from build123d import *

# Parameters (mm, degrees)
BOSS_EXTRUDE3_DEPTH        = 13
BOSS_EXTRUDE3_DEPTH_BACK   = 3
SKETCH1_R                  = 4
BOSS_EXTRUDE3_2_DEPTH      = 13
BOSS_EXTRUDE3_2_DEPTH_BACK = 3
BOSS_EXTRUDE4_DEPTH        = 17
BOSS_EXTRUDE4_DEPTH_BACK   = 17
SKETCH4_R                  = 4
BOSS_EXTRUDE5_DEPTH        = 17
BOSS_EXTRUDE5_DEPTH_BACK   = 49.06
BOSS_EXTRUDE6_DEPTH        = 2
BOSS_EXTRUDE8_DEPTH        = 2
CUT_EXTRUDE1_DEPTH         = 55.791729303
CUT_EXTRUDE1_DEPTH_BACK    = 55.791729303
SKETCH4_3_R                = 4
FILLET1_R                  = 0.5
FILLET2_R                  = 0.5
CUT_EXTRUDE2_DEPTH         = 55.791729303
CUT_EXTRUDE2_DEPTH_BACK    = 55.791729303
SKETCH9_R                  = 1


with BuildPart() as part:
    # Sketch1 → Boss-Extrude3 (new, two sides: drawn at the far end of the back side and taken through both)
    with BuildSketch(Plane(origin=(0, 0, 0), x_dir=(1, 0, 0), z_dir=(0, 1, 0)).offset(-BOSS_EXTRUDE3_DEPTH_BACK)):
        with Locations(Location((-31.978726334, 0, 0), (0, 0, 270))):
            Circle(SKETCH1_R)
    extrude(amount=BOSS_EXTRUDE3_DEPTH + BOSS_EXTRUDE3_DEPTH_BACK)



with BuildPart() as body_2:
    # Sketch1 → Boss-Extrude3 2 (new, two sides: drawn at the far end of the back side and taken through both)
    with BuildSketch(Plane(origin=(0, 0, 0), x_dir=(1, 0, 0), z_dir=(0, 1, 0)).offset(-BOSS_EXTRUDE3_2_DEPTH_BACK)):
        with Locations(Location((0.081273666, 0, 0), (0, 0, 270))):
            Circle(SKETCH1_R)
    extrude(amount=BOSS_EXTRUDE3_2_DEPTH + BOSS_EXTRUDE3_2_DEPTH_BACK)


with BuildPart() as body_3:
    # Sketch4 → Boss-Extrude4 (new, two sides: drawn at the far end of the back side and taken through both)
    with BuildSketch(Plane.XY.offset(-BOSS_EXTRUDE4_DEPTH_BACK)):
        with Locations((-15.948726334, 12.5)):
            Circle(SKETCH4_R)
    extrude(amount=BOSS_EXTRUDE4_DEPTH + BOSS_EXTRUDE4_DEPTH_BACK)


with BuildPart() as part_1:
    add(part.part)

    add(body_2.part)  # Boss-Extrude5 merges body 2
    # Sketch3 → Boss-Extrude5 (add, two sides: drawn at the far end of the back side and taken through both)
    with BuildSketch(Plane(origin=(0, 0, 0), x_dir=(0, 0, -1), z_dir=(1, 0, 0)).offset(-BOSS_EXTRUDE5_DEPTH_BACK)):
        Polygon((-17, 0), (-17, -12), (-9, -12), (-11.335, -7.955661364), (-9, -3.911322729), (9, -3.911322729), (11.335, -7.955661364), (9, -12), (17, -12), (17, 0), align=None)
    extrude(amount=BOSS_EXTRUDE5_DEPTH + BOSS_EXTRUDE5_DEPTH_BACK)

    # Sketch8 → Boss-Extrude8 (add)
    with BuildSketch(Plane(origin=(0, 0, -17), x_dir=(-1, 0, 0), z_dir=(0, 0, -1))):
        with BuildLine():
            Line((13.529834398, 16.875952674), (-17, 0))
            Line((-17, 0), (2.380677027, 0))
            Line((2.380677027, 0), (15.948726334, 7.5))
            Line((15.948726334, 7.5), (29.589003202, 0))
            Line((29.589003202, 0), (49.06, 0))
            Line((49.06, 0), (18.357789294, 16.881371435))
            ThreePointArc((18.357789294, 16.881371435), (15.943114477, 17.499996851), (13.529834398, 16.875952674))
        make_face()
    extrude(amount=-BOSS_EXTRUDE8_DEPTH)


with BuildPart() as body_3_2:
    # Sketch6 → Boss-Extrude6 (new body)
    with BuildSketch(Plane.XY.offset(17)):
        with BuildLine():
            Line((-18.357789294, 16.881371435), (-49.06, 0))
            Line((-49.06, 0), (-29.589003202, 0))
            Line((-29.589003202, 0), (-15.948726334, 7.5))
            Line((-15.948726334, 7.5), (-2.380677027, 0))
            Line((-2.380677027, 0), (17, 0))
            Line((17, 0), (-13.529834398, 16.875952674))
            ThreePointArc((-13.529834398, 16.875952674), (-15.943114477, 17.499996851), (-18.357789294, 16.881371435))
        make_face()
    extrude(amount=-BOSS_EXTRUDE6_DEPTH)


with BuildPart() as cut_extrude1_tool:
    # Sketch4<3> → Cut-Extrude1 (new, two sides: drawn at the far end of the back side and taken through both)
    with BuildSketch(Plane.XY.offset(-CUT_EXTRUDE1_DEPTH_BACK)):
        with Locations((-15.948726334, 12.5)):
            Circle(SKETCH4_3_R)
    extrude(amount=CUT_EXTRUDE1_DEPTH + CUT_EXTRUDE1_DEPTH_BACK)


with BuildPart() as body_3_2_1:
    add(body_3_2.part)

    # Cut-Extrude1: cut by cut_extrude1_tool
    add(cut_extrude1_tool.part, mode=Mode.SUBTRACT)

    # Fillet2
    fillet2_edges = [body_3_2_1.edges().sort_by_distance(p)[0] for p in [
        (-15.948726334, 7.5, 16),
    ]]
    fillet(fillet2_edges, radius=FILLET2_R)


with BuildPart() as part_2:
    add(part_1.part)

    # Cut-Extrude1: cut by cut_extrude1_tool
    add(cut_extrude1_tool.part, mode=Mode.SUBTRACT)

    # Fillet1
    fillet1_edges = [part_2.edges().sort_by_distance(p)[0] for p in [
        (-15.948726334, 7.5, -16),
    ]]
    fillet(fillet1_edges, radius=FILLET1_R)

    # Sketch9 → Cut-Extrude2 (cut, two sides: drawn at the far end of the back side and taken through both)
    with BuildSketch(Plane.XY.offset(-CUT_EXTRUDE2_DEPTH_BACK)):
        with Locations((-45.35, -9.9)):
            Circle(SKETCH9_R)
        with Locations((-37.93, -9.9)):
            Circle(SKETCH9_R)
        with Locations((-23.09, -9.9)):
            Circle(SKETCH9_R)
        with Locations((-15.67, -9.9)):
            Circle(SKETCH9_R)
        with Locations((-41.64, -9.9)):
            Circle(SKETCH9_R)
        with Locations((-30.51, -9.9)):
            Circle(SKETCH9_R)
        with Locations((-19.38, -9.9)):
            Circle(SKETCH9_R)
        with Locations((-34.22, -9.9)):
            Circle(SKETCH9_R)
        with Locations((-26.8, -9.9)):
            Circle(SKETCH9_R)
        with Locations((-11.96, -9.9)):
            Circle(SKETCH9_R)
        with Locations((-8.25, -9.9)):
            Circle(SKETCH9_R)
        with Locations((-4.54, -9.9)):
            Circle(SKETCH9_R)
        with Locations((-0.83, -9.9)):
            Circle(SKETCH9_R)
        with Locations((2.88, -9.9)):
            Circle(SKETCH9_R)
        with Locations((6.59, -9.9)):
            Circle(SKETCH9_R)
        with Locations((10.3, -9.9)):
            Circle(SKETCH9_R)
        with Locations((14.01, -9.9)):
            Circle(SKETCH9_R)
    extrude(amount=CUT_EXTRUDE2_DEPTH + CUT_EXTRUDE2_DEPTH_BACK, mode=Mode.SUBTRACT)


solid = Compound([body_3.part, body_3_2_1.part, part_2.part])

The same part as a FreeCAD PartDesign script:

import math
import FreeCAD as App
import Part
import Sketcher
Q = App.Units.Quantity


def edges_at(feature, points):
    """Names of the edges that pass closest to the given points."""
    edges = feature.Shape.Edges
    near = lambda p: min(range(len(edges)), key=lambda i: edges[i].distToShape(Part.Vertex(*p))[0])
    return sorted({f"Edge{near(p) + 1}" for p in points})


def add_polygon(sketch, points):
    """Adds a closed chain of lines whose ends are joined by coincident constraints."""
    first, n = sketch.GeometryCount, len(points)
    for a, b in zip(points, points[1:] + points[:1]):
        sketch.addGeometry(Part.LineSegment(App.Vector(*a, 0), App.Vector(*b, 0)), False)
    for i in range(n):
        sketch.addConstraint(Sketcher.Constraint("Coincident", first + i, 2, first + (i + 1) % n, 1))

doc = App.newDocument("Part")
params = doc.addObject("Spreadsheet::Sheet", "Params")
for row, (alias, value) in enumerate([
    ("sketch1_diameter", "8 mm"),
    ("pad1_length", "13 mm"),
    ("pad1_length2", "3 mm"),
    ("sketch2_diameter", "8 mm"),
    ("pad2_length", "13 mm"),
    ("pad2_length2", "3 mm"),
    ("sketch3_diameter", "8 mm"),
    ("pad3_length", "17 mm"),
    ("pad3_length2", "17 mm"),
    ("sketch4_width", "12 mm"),
    ("sketch4_height", "8 mm"),
    ("sketch4_height2", "18 mm"),
    ("sketch4_length", "4.67 mm"),
    ("pad4_length", "17 mm"),
    ("pad4_length2", "49.06 mm"),
    ("sketch5_radius", "5 mm"),
    ("pad5_length", "2 mm"),
    ("sketch6_radius", "5 mm"),
    ("pad6_length", "2 mm"),
    ("sketch7_diameter", "8 mm"),
    ("pad7_length", "55.791729 mm"),
    ("pad7_length2", "55.791729 mm"),
    ("fillet_radius", "0.5 mm"),
    ("fillet2_radius", "0.5 mm"),
    ("sketch8_diameter", "2 mm"),
], start=1):
    params.set(f"A{row}", alias)
    params.set(f"B{row}", "=" + value)
    params.setAlias(f"B{row}", alias)

body = doc.addObject("PartDesign::Body", "Body")

# Sketch on XZ plane
sketch1 = doc.addObject("Sketcher::SketchObject", "Sketch")
body.addObject(sketch1)
sketch1.AttachmentSupport = (doc.XZ_Plane, [""])
sketch1.MapMode = "FlatFace"
sketch1.addGeometry(Part.Circle(App.Vector(-32, 0, 0), App.Vector(0, 0, 1), 4), False)
sketch1.addConstraint([
    Sketcher.Constraint("PointOnObject", 0, 3, -1),
    Sketcher.Constraint("Diameter", 0, Q("8 mm")),
    Sketcher.Constraint("DistanceX", 0, 3, -1, 1, Q("31.978726 mm")),
])
sketch1.setExpression("Constraints[1]", "Params.sketch1_diameter")
pad1 = doc.addObject("PartDesign::Pad", "Pad")
body.addObject(pad1)
pad1.Profile = sketch1
pad1.Type = "TwoLengths"
pad1.setExpression("Length", "Params.pad1_length")
pad1.setExpression("Length2", "Params.pad1_length2")
pad1.Reversed = True
body2 = doc.addObject("PartDesign::Body", "Body001")

# Sketch on XZ plane
sketch2 = doc.addObject("Sketcher::SketchObject", "Sketch001")
body2.addObject(sketch2)
sketch2.AttachmentSupport = (doc.getObject("XZ_Plane001"), [""])
sketch2.MapMode = "FlatFace"
sketch2.addGeometry(Part.Circle(App.Vector(0.1, 0, 0), App.Vector(0, 0, 1), 4), False)
sketch2.addConstraint([
    Sketcher.Constraint("PointOnObject", 0, 3, -1),
    Sketcher.Constraint("Diameter", 0, Q("8 mm")),
    Sketcher.Constraint("DistanceX", -1, 1, 0, 3, Q("0.081274 mm")),
])
sketch2.setExpression("Constraints[1]", "Params.sketch2_diameter")
pad2 = doc.addObject("PartDesign::Pad", "Pad001")
body2.addObject(pad2)
pad2.Profile = sketch2
pad2.Type = "TwoLengths"
pad2.setExpression("Length", "Params.pad2_length")
pad2.setExpression("Length2", "Params.pad2_length2")
pad2.Reversed = True
body3 = doc.addObject("PartDesign::Body", "Body002")

# Sketch on XY plane
sketch3 = doc.addObject("Sketcher::SketchObject", "Sketch002")
body3.addObject(sketch3)
sketch3.AttachmentSupport = (doc.getObject("XY_Plane002"), [""])
sketch3.MapMode = "FlatFace"
sketch3.addGeometry(Part.Circle(App.Vector(-15.9, 12.5, 0), App.Vector(0, 0, 1), 4), False)
sketch3.addConstraint([
    Sketcher.Constraint("Diameter", 0, Q("8 mm")),
    Sketcher.Constraint("DistanceY", -1, 1, 0, 3, Q("12.5 mm")),
    Sketcher.Constraint("DistanceX", 0, 3, -1, 1, Q("15.948726 mm")),
])
sketch3.setExpression("Constraints[0]", "Params.sketch3_diameter")
pad3 = doc.addObject("PartDesign::Pad", "Pad002")
body3.addObject(pad3)
pad3.Profile = sketch3
pad3.Type = "TwoLengths"
pad3.setExpression("Length", "Params.pad3_length")
pad3.setExpression("Length2", "Params.pad3_length2")
body.AllowCompound = True
doc.recompute()

boolean = doc.addObject("PartDesign::Boolean", "Boolean")
body.addObject(boolean)
boolean.Type = "Fuse"
boolean.addObjects([body2])

# Sketch on YZ plane
sketch4 = doc.addObject("Sketcher::SketchObject", "Sketch003")
body.addObject(sketch4)
sketch4.AttachmentSupport = (doc.YZ_Plane, [""])
sketch4.MapMode = "FlatFace"
add_polygon(sketch4, [(0, 17), (-12, 17), (-12, 9), (-8, 11.3), (-3.9, 9), (-3.9, -9), (-8, -11.3), (-12, -9), (-12, -17), (0, -17)])  # lines 0-9
sketch4.addConstraint([
    Sketcher.Constraint("Horizontal", 0),
    Sketcher.Constraint("Vertical", 1),
    Sketcher.Constraint("Vertical", 4),
    Sketcher.Constraint("Vertical", 7),
    Sketcher.Constraint("Horizontal", 8),
    Sketcher.Constraint("Vertical", 9),
    Sketcher.Constraint("Symmetric", 8, 2, 9, 2, -1, 1),
    Sketcher.Constraint("Symmetric", 2, 2, 5, 2, -1),
    Sketcher.Constraint("Symmetric", 1, 2, 6, 2, -1),
    Sketcher.Constraint("Parallel", 2, 5),
    Sketcher.Constraint("Parallel", 3, 6),
    Sketcher.Constraint("Horizontal", 1, 2, 3, 2),
    Sketcher.Constraint("DistanceX", 0, 2, 0, 1, Q("12 mm")),
    Sketcher.Constraint("DistanceY", 1, 2, 1, 1, Q("8 mm")),
    Sketcher.Constraint("DistanceY", 4, 2, 4, 1, Q("18 mm")),
    Sketcher.Constraint("Angle", 2, Q("30 deg")),
    Sketcher.Constraint("Distance", 2, Q("4.67 mm")),
])
sketch4.setExpression("Constraints[22]", "Params.sketch4_width")
sketch4.setExpression("Constraints[23]", "Params.sketch4_height")
sketch4.setExpression("Constraints[24]", "Params.sketch4_height2")
sketch4.setExpression("Constraints[26]", "Params.sketch4_length")
pad4 = doc.addObject("PartDesign::Pad", "Pad003")
body.addObject(pad4)
pad4.Profile = sketch4
pad4.Type = "TwoLengths"
pad4.setExpression("Length", "Params.pad4_length")
pad4.setExpression("Length2", "Params.pad4_length2")

# Sketch on XY plane
sketch5 = doc.addObject("Sketcher::SketchObject", "Sketch004")
body.addObject(sketch5)
sketch5.AttachmentSupport = (doc.XY_Plane, [""])
sketch5.MapMode = "FlatFace"
sketch5.AttachmentOffset = App.Placement(App.Vector(0, 0, -17), App.Rotation())
sketch5.addGeometry([
    Part.LineSegment(App.Vector(-13.5, 16.9, 0), App.Vector(17, 0, 0)),  # 0
    Part.LineSegment(App.Vector(17, 0, 0), App.Vector(-2.4, 0, 0)),  # 1
    Part.LineSegment(App.Vector(-2.4, 0, 0), App.Vector(-15.9, 7.5, 0)),  # 2
    Part.LineSegment(App.Vector(-15.9, 7.5, 0), App.Vector(-29.6, 0, 0)),  # 3
    Part.LineSegment(App.Vector(-29.6, 0, 0), App.Vector(-49.1, 0, 0)),  # 4
    Part.LineSegment(App.Vector(-49.1, 0, 0), App.Vector(-18.4, 16.9, 0)),  # 5
    Part.ArcOfCircle(Part.Circle(App.Vector(-15.9, 12.5, 0), App.Vector(0, 0, 1), 5), math.radians(61), math.radians(119)),  # 6
], False)
sketch5.addConstraint([
    Sketcher.Constraint("Coincident", 0, 2, 1, 1),
    Sketcher.Constraint("Coincident", 1, 2, 2, 1),
    Sketcher.Constraint("Coincident", 2, 2, 3, 1),
    Sketcher.Constraint("Coincident", 3, 2, 4, 1),
    Sketcher.Constraint("Coincident", 4, 2, 5, 1),
    Sketcher.Constraint("Tangent", 5, 2, 6, 2),
    Sketcher.Constraint("Tangent", 6, 1, 0, 1),
    Sketcher.Constraint("Horizontal", 1),
    Sketcher.Constraint("Horizontal", 4),
    Sketcher.Constraint("PointOnObject", 0, 2, -1),
    Sketcher.Constraint("PointOnObject", 3, 2, -1),
    Sketcher.Constraint("Parallel", 0, 2),
    Sketcher.Constraint("Parallel", 3, 5),
    Sketcher.Constraint("Vertical", 6, 3, 2, 2),
    Sketcher.Constraint("Radius", 6, Q("5 mm")),
    Sketcher.Constraint("DistanceX", -1, 1, 0, 2, Q("17 mm")),
    Sketcher.Constraint("DistanceY", 2, 2, 6, 3, Q("5 mm")),
    Sketcher.Constraint("DistanceY", -1, 1, 6, 3, Q("12.5 mm")),
    Sketcher.Constraint("DistanceX", 4, 2, -1, 1, Q("49.06 mm")),
    Sketcher.Constraint("Distance", 3, Q("15.566218 mm")),
])
sketch5.setExpression("Constraints[14]", "Params.sketch5_radius")
pad5 = doc.addObject("PartDesign::Pad", "Pad004")
body.addObject(pad5)
pad5.Profile = sketch5
pad5.setExpression("Length", "Params.pad5_length")
body4 = doc.addObject("PartDesign::Body", "Body003")

# Sketch on XY plane
sketch6 = doc.addObject("Sketcher::SketchObject", "Sketch005")
body4.addObject(sketch6)
sketch6.AttachmentSupport = (doc.getObject("XY_Plane003"), [""])
sketch6.MapMode = "FlatFace"
sketch6.AttachmentOffset = App.Placement(App.Vector(0, 0, 17), App.Rotation())
sketch6.addGeometry([
    Part.LineSegment(App.Vector(-18.4, 16.9, 0), App.Vector(-49.1, 0, 0)),  # 0
    Part.LineSegment(App.Vector(-49.1, 0, 0), App.Vector(-29.6, 0, 0)),  # 1
    Part.LineSegment(App.Vector(-29.6, 0, 0), App.Vector(-15.9, 7.5, 0)),  # 2
    Part.LineSegment(App.Vector(-15.9, 7.5, 0), App.Vector(-2.4, 0, 0)),  # 3
    Part.LineSegment(App.Vector(-2.4, 0, 0), App.Vector(17, 0, 0)),  # 4
    Part.LineSegment(App.Vector(17, 0, 0), App.Vector(-13.5, 16.9, 0)),  # 5
    Part.ArcOfCircle(Part.Circle(App.Vector(-15.9, 12.5, 0), App.Vector(0, 0, 1), 5), math.radians(61), math.radians(119)),  # 6
], False)
sketch6.addConstraint([
    Sketcher.Constraint("Coincident", 0, 2, 1, 1),
    Sketcher.Constraint("Coincident", 1, 2, 2, 1),
    Sketcher.Constraint("Coincident", 2, 2, 3, 1),
    Sketcher.Constraint("Coincident", 3, 2, 4, 1),
    Sketcher.Constraint("Coincident", 4, 2, 5, 1),
    Sketcher.Constraint("Tangent", 5, 2, 6, 1),
    Sketcher.Constraint("Tangent", 6, 2, 0, 1),
    Sketcher.Constraint("Horizontal", 1),
    Sketcher.Constraint("Horizontal", 4),
    Sketcher.Constraint("PointOnObject", 0, 2, -1),
    Sketcher.Constraint("PointOnObject", 3, 2, -1),
    Sketcher.Constraint("Parallel", 0, 2),
    Sketcher.Constraint("Parallel", 3, 5),
    Sketcher.Constraint("Vertical", 6, 3, 2, 2),
    Sketcher.Constraint("Radius", 6, Q("5 mm")),
    Sketcher.Constraint("DistanceX", -1, 1, 4, 2, Q("17 mm")),
    Sketcher.Constraint("DistanceY", 2, 2, 6, 3, Q("5 mm")),
    Sketcher.Constraint("DistanceY", -1, 1, 6, 3, Q("12.5 mm")),
    Sketcher.Constraint("DistanceX", 0, 2, -1, 1, Q("49.06 mm")),
    Sketcher.Constraint("Distance", 2, Q("15.566218 mm")),
])
sketch6.setExpression("Constraints[14]", "Params.sketch6_radius")
pad6 = doc.addObject("PartDesign::Pad", "Pad005")
body4.addObject(pad6)
pad6.Profile = sketch6
pad6.setExpression("Length", "Params.pad6_length")
pad6.Reversed = True
body5 = doc.addObject("PartDesign::Body", "Body004")

# Sketch on XY plane
sketch7 = doc.addObject("Sketcher::SketchObject", "Sketch006")
body5.addObject(sketch7)
sketch7.AttachmentSupport = (doc.getObject("XY_Plane004"), [""])
sketch7.MapMode = "FlatFace"
sketch7.addGeometry(Part.Circle(App.Vector(-15.9, 12.5, 0), App.Vector(0, 0, 1), 4), False)
sketch7.addConstraint([
    Sketcher.Constraint("Diameter", 0, Q("8 mm")),
    Sketcher.Constraint("DistanceY", -1, 1, 0, 3, Q("12.5 mm")),
    Sketcher.Constraint("DistanceX", 0, 3, -1, 1, Q("15.948726 mm")),
])
sketch7.setExpression("Constraints[0]", "Params.sketch7_diameter")
pad7 = doc.addObject("PartDesign::Pad", "Pad006")
body5.addObject(pad7)
pad7.Profile = sketch7
pad7.Type = "TwoLengths"
pad7.setExpression("Length", "Params.pad7_length")
pad7.setExpression("Length2", "Params.pad7_length2")
doc.recompute()

body6 = doc.addObject("PartDesign::Body", "Body005")
body6.BaseFeature = body5
boolean2 = doc.addObject("PartDesign::Boolean", "Boolean001")
body4.addObject(boolean2)
boolean2.Type = "Cut"
boolean2.addObjects([body6])
doc.recompute()

fillet = doc.addObject("PartDesign::Fillet", "Fillet")
body4.addObject(fillet)
fillet.Base = (boolean2, edges_at(boolean2, [(-15.949, 7.5, 16)]))
fillet.setExpression("Radius", "Params.fillet_radius")
doc.recompute()

boolean3 = doc.addObject("PartDesign::Boolean", "Boolean002")
body.addObject(boolean3)
boolean3.Type = "Cut"
boolean3.addObjects([body5])
doc.recompute()

fillet2 = doc.addObject("PartDesign::Fillet", "Fillet001")
body.addObject(fillet2)
fillet2.Base = (boolean3, edges_at(boolean3, [(-15.949, 7.5, -16)]))
fillet2.setExpression("Radius", "Params.fillet2_radius")

# Sketch on XY plane
sketch8 = doc.addObject("Sketcher::SketchObject", "Sketch007")
body.addObject(sketch8)
sketch8.AttachmentSupport = (doc.XY_Plane, [""])
sketch8.MapMode = "FlatFace"
sketch8.addGeometry([
    Part.Circle(App.Vector(-45.4, -9.9, 0), App.Vector(0, 0, 1), 1),  # 0
    Part.Circle(App.Vector(-37.9, -9.9, 0), App.Vector(0, 0, 1), 1),  # 1
    Part.Circle(App.Vector(-23.1, -9.9, 0), App.Vector(0, 0, 1), 1),  # 2
    Part.Circle(App.Vector(-15.7, -9.9, 0), App.Vector(0, 0, 1), 1),  # 3
    Part.Circle(App.Vector(-41.6, -9.9, 0), App.Vector(0, 0, 1), 1),  # 4
    Part.Circle(App.Vector(-30.5, -9.9, 0), App.Vector(0, 0, 1), 1),  # 5
    Part.Circle(App.Vector(-19.4, -9.9, 0), App.Vector(0, 0, 1), 1),  # 6
    Part.Circle(App.Vector(-34.2, -9.9, 0), App.Vector(0, 0, 1), 1),  # 7
    Part.Circle(App.Vector(-26.8, -9.9, 0), App.Vector(0, 0, 1), 1),  # 8
    Part.Circle(App.Vector(-12, -9.9, 0), App.Vector(0, 0, 1), 1),  # 9
    Part.Circle(App.Vector(-8.2, -9.9, 0), App.Vector(0, 0, 1), 1),  # 10
    Part.Circle(App.Vector(-4.5, -9.9, 0), App.Vector(0, 0, 1), 1),  # 11
    Part.Circle(App.Vector(-0.8, -9.9, 0), App.Vector(0, 0, 1), 1),  # 12
    Part.Circle(App.Vector(2.9, -9.9, 0), App.Vector(0, 0, 1), 1),  # 13
    Part.Circle(App.Vector(6.6, -9.9, 0), App.Vector(0, 0, 1), 1),  # 14
    Part.Circle(App.Vector(10.3, -9.9, 0), App.Vector(0, 0, 1), 1),  # 15
    Part.Circle(App.Vector(14, -9.9, 0), App.Vector(0, 0, 1), 1),  # 16
], False)
sketch8.addConstraint([
    Sketcher.Constraint("Equal", 0, 1),
    Sketcher.Constraint("Equal", 1, 2),
    Sketcher.Constraint("Equal", 2, 3),
    Sketcher.Constraint("Equal", 3, 4),
    Sketcher.Constraint("Equal", 4, 5),
    Sketcher.Constraint("Equal", 5, 6),
    Sketcher.Constraint("Equal", 6, 7),
    Sketcher.Constraint("Equal", 7, 8),
    Sketcher.Constraint("Equal", 8, 9),
    Sketcher.Constraint("Equal", 9, 10),
    Sketcher.Constraint("Equal", 10, 11),
    Sketcher.Constraint("Equal", 11, 12),
    Sketcher.Constraint("Equal", 12, 13),
    Sketcher.Constraint("Equal", 13, 14),
    Sketcher.Constraint("Equal", 14, 15),
    Sketcher.Constraint("Equal", 15, 16),
    Sketcher.Constraint("Horizontal", 0, 3, 1, 3),
    Sketcher.Constraint("Horizontal", 1, 3, 2, 3),
    Sketcher.Constraint("Horizontal", 2, 3, 3, 3),
    Sketcher.Constraint("Horizontal", 3, 3, 4, 3),
    Sketcher.Constraint("Horizontal", 4, 3, 5, 3),
    Sketcher.Constraint("Horizontal", 5, 3, 6, 3),
    Sketcher.Constraint("Horizontal", 6, 3, 7, 3),
    Sketcher.Constraint("Horizontal", 7, 3, 8, 3),
    Sketcher.Constraint("Horizontal", 8, 3, 9, 3),
    Sketcher.Constraint("Horizontal", 9, 3, 10, 3),
    Sketcher.Constraint("Horizontal", 10, 3, 11, 3),
    Sketcher.Constraint("Horizontal", 11, 3, 12, 3),
    Sketcher.Constraint("Horizontal", 12, 3, 13, 3),
    Sketcher.Constraint("Horizontal", 13, 3, 14, 3),
    Sketcher.Constraint("Horizontal", 14, 3, 15, 3),
    Sketcher.Constraint("Horizontal", 15, 3, 16, 3),
    Sketcher.Constraint("Diameter", 0, Q("2 mm")),
    Sketcher.Constraint("DistanceY", 0, 3, -1, 1, Q("9.9 mm")),
    Sketcher.Constraint("DistanceX", 8, 3, -1, 1, Q("26.8 mm")),
    Sketcher.Constraint("DistanceX", -1, 1, 15, 3, Q("10.3 mm")),
    Sketcher.Constraint("DistanceX", 0, 3, -1, 1, Q("45.35 mm")),
    Sketcher.Constraint("DistanceX", 1, 3, -1, 1, Q("37.93 mm")),
    Sketcher.Constraint("DistanceX", 2, 3, -1, 1, Q("23.09 mm")),
    Sketcher.Constraint("DistanceX", 3, 3, -1, 1, Q("15.67 mm")),
    Sketcher.Constraint("DistanceX", 4, 3, -1, 1, Q("41.64 mm")),
    Sketcher.Constraint("DistanceX", 5, 3, -1, 1, Q("30.51 mm")),
    Sketcher.Constraint("DistanceX", 6, 3, -1, 1, Q("19.38 mm")),
    Sketcher.Constraint("DistanceX", 7, 3, -1, 1, Q("34.22 mm")),
    Sketcher.Constraint("DistanceX", 9, 3, -1, 1, Q("11.96 mm")),
    Sketcher.Constraint("DistanceX", 10, 3, -1, 1, Q("8.25 mm")),
    Sketcher.Constraint("DistanceX", 11, 3, -1, 1, Q("4.54 mm")),
    Sketcher.Constraint("DistanceX", 12, 3, -1, 1, Q("0.83 mm")),
    Sketcher.Constraint("DistanceX", -1, 1, 13, 3, Q("2.88 mm")),
    Sketcher.Constraint("DistanceX", -1, 1, 14, 3, Q("6.59 mm")),
    Sketcher.Constraint("DistanceX", -1, 1, 16, 3, Q("14.01 mm")),
])
sketch8.setExpression("Constraints[32]", "Params.sketch8_diameter")
pocket1 = doc.addObject("PartDesign::Pocket", "Pocket")
body.addObject(pocket1)
pocket1.Profile = sketch8
pocket1.Type = "ThroughAll"
pocket1.Midplane = True

doc.recompute()
